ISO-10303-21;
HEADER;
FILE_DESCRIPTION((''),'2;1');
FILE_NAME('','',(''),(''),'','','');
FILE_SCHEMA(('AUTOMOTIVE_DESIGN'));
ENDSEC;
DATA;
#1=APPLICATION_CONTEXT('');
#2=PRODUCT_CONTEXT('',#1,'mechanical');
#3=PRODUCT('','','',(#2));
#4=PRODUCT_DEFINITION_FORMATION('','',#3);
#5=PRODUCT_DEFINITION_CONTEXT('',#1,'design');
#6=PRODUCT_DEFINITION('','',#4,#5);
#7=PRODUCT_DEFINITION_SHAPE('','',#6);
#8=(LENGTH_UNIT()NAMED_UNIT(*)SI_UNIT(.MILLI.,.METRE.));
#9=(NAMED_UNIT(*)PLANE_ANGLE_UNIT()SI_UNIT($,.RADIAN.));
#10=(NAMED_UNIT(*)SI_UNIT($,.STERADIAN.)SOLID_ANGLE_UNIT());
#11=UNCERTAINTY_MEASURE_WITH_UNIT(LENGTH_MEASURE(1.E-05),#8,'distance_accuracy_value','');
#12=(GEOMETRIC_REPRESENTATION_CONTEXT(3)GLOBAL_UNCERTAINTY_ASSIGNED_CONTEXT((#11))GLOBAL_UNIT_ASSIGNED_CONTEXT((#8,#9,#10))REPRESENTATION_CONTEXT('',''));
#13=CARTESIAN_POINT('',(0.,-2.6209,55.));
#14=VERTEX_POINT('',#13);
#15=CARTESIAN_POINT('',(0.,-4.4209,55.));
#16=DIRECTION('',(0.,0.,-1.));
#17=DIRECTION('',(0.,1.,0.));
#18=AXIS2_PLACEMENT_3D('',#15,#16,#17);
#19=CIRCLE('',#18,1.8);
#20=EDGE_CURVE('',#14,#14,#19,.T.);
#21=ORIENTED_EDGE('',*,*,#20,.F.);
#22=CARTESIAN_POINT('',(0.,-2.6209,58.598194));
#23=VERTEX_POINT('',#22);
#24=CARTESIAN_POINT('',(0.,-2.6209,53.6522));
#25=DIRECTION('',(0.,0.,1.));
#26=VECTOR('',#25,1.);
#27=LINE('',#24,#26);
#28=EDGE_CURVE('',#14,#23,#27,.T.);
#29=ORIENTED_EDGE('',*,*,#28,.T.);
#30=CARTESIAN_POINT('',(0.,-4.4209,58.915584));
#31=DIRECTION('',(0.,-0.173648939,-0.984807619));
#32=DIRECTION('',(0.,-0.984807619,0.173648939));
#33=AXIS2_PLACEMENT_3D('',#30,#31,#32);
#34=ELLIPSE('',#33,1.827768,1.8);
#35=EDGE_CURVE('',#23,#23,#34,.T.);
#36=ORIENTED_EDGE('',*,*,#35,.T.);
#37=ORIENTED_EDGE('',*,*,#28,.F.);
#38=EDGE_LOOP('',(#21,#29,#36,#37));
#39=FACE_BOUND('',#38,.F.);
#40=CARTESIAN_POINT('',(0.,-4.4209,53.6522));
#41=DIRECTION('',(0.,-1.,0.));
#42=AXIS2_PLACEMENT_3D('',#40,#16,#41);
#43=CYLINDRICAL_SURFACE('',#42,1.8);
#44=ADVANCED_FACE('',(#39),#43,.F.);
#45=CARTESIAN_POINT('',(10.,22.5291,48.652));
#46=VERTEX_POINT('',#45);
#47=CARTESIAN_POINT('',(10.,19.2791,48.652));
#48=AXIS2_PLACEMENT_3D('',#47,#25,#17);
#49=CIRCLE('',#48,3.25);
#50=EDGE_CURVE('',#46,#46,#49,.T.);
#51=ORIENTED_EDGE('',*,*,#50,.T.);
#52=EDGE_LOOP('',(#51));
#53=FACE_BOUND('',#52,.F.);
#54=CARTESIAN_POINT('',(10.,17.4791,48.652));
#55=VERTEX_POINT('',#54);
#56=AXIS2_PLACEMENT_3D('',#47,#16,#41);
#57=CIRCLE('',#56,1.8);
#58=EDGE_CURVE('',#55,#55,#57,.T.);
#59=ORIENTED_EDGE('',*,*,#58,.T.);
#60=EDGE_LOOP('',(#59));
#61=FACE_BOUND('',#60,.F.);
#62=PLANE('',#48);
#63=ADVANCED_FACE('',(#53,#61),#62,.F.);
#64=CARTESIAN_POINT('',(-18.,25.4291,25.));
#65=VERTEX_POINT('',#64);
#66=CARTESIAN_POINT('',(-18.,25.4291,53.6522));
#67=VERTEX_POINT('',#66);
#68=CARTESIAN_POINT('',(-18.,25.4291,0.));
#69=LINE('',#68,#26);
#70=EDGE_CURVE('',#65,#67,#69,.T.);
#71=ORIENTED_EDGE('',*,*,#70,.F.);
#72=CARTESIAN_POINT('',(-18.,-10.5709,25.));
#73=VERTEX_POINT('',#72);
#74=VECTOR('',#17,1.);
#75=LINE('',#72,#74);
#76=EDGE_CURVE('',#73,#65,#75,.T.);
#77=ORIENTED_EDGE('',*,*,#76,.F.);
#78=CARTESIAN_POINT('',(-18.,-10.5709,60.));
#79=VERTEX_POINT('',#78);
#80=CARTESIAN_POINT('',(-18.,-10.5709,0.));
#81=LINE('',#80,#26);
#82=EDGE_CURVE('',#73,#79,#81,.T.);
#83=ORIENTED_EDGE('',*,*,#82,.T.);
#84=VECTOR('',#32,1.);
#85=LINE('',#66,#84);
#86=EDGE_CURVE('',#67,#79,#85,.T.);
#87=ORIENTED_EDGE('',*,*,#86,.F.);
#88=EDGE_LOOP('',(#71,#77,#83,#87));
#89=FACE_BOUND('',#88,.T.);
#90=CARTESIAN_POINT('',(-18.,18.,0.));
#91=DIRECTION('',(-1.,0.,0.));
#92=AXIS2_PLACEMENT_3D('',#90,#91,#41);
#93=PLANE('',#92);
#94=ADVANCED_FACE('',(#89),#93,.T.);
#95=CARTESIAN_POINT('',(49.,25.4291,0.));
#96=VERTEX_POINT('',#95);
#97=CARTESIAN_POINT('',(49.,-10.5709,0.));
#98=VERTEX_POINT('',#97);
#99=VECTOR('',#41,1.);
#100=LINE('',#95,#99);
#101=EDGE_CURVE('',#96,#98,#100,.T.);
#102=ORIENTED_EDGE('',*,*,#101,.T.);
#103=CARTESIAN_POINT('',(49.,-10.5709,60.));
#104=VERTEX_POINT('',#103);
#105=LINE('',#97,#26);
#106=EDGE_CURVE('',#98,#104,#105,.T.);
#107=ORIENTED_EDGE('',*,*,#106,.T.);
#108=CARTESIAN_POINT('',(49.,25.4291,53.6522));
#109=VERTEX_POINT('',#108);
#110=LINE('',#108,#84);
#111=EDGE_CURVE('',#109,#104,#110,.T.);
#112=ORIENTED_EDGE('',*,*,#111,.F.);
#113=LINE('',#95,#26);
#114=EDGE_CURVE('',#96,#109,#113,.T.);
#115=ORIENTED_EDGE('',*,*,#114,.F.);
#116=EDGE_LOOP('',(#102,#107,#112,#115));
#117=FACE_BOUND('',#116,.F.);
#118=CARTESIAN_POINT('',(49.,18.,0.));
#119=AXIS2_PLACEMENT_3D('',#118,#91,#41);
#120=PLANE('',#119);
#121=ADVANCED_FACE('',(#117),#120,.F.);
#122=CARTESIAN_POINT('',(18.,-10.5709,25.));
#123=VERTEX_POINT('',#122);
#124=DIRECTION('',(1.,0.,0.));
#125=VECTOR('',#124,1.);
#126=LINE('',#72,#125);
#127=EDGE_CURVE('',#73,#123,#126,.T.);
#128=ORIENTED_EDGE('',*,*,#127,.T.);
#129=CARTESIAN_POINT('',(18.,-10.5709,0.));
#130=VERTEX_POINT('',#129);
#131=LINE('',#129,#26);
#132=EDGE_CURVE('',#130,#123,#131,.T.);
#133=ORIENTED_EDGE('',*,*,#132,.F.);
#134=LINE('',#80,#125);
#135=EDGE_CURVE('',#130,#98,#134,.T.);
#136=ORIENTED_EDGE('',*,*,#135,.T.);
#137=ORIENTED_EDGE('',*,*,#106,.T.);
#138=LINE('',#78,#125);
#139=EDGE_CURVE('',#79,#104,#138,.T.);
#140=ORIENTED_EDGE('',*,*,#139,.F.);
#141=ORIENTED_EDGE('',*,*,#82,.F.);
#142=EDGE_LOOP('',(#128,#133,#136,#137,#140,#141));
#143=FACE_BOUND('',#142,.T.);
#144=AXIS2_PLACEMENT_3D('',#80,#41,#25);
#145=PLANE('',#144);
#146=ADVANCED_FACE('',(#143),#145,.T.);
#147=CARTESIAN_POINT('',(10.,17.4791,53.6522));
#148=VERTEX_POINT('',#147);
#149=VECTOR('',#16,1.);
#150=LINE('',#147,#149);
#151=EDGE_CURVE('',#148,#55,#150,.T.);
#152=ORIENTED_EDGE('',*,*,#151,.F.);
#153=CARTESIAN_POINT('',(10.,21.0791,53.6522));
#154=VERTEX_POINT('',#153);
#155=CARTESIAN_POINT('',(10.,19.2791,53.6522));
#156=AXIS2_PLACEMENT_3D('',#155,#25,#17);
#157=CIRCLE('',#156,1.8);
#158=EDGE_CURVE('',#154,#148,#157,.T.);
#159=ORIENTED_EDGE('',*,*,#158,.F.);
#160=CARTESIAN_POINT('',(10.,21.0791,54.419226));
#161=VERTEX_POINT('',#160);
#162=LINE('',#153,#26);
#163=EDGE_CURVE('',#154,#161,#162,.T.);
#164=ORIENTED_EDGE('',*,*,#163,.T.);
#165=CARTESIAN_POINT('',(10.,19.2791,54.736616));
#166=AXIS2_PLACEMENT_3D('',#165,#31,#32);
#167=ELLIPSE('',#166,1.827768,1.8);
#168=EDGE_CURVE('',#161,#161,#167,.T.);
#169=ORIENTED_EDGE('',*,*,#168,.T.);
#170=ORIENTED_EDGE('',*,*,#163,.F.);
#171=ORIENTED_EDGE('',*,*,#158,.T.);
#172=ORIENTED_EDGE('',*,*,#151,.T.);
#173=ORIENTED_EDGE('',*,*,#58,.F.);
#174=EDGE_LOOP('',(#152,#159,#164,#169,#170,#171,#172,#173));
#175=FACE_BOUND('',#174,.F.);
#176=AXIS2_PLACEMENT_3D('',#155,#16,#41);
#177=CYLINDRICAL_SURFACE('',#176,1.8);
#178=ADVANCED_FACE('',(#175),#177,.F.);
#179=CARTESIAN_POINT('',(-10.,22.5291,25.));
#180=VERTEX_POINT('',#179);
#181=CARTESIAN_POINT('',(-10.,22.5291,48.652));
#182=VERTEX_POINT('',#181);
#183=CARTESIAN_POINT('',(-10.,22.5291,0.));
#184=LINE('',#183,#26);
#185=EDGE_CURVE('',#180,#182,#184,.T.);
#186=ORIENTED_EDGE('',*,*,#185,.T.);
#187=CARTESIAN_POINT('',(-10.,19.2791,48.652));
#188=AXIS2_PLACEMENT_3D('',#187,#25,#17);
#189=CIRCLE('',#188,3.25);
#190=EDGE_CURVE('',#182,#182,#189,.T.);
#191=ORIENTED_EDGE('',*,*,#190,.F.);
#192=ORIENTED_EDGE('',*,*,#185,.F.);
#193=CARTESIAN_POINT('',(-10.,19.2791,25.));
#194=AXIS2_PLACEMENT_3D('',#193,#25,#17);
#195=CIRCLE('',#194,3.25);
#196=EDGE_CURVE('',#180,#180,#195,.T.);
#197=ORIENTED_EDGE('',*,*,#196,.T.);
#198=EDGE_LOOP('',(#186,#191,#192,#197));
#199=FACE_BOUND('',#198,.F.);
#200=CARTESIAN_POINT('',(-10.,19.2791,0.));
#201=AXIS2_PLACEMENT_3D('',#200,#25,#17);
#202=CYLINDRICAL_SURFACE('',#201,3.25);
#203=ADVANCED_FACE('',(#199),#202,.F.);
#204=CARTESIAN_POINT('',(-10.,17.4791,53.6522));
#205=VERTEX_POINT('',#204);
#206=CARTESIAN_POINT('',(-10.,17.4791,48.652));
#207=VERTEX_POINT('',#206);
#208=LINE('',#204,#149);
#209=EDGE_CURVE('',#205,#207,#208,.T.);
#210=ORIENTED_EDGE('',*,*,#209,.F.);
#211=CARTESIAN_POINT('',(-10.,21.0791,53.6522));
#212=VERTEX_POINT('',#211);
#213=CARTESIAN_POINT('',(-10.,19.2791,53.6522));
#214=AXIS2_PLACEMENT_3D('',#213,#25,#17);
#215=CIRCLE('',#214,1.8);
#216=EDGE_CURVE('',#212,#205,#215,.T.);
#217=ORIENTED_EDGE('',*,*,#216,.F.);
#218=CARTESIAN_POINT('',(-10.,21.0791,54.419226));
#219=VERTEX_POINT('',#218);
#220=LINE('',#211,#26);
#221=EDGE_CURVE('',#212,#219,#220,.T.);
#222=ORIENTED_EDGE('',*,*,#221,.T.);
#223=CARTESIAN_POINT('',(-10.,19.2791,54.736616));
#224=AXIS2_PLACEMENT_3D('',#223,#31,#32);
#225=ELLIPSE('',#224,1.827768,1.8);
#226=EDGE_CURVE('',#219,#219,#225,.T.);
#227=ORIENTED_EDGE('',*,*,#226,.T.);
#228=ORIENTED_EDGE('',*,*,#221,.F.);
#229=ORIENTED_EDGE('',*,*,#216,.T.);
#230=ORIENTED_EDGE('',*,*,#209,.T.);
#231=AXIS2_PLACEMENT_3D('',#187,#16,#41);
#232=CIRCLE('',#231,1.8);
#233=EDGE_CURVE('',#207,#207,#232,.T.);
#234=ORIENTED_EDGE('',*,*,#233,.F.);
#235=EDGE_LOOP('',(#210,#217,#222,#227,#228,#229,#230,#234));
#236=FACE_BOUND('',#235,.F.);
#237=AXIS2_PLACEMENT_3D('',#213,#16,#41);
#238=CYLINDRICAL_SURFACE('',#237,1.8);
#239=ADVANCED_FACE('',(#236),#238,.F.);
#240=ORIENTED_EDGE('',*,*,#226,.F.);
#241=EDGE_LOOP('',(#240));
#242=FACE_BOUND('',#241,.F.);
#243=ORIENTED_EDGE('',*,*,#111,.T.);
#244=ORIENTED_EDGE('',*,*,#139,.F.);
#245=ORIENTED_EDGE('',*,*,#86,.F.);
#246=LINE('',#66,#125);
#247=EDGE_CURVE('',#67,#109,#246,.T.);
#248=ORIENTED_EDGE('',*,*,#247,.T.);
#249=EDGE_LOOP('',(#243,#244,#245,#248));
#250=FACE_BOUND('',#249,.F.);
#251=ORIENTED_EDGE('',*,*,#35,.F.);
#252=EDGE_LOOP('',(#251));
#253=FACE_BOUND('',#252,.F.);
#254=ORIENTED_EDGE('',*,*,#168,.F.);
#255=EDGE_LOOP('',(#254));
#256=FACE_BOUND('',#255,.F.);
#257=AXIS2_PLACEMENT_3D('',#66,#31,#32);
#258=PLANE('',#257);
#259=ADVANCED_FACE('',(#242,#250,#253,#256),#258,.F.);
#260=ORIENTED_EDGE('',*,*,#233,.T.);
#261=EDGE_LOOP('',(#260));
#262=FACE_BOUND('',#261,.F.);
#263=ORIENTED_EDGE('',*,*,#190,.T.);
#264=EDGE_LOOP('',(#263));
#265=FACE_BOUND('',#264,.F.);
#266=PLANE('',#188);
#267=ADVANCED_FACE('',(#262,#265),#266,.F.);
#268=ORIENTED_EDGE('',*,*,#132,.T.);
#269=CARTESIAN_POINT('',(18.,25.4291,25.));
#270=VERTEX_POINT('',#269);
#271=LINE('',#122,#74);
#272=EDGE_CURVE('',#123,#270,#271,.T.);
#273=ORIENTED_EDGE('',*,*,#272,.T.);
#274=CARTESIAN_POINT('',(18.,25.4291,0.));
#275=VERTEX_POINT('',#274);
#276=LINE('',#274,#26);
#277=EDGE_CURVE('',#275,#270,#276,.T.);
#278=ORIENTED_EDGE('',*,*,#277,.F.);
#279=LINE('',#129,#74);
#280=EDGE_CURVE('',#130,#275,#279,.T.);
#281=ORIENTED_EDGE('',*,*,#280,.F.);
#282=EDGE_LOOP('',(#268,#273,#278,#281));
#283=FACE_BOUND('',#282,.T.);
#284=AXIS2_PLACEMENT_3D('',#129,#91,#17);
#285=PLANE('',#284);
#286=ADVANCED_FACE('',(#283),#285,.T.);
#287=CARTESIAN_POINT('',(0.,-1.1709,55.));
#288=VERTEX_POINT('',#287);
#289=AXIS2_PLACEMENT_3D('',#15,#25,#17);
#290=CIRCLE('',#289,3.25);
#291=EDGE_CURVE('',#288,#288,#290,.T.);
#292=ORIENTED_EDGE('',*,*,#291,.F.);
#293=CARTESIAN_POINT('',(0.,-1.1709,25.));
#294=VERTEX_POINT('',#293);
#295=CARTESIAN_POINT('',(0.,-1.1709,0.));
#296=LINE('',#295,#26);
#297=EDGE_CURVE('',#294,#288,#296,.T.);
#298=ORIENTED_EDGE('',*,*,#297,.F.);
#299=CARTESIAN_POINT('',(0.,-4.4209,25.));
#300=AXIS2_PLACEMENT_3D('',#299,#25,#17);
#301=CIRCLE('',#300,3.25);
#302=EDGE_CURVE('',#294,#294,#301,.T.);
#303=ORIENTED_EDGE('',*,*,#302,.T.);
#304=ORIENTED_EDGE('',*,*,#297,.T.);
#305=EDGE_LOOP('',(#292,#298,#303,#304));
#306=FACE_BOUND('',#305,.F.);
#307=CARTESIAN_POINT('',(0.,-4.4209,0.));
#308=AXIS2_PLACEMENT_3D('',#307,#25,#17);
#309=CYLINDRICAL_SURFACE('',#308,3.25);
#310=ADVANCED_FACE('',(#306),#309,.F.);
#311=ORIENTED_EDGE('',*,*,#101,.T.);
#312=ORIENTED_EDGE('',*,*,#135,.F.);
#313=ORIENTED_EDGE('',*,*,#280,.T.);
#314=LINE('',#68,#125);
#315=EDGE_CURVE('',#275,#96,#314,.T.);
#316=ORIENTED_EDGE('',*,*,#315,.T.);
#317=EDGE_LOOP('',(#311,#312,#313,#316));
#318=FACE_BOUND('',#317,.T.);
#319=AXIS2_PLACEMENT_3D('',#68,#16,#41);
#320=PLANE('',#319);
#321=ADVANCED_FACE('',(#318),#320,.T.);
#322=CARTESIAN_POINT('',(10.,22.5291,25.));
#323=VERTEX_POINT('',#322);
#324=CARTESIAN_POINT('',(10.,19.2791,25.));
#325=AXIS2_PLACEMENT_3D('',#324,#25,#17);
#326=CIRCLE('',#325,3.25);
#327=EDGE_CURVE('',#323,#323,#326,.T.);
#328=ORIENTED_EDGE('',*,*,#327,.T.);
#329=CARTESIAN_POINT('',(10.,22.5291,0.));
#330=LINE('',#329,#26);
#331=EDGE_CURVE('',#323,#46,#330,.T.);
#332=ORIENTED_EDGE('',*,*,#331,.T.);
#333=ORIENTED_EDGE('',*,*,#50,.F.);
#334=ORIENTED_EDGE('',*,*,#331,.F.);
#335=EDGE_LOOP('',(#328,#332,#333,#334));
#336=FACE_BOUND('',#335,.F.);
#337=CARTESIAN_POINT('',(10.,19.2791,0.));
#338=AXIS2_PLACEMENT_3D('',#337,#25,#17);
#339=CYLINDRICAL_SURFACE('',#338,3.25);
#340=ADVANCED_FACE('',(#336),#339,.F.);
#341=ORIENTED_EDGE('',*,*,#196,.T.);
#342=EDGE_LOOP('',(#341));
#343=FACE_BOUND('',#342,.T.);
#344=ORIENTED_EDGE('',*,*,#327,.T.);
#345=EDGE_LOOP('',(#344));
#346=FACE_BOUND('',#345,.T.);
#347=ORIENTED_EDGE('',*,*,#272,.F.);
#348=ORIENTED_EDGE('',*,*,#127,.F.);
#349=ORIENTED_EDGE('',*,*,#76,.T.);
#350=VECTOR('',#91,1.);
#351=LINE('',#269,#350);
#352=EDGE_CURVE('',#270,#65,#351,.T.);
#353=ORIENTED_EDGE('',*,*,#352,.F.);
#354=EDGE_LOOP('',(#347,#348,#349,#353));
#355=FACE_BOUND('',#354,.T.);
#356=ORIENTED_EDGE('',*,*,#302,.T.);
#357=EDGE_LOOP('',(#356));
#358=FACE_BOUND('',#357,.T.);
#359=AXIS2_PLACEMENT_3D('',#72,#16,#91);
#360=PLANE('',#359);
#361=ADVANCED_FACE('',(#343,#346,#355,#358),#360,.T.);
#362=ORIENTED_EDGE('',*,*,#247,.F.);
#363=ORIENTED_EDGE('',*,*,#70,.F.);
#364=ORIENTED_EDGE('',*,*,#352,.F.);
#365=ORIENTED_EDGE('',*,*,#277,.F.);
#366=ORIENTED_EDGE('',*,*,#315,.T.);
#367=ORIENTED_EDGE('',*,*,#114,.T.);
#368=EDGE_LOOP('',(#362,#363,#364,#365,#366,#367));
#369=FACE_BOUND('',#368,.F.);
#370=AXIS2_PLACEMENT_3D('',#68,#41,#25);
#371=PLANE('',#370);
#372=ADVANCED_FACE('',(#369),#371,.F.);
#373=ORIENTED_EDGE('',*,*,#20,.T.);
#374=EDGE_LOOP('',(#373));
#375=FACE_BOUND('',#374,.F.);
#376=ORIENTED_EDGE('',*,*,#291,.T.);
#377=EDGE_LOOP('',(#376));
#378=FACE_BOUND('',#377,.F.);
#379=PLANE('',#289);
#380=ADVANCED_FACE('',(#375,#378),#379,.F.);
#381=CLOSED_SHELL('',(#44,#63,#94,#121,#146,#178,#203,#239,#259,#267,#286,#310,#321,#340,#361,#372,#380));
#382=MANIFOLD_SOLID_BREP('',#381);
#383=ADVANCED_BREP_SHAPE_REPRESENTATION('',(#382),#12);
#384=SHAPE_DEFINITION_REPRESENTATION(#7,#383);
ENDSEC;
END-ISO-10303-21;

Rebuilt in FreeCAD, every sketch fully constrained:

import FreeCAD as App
import Part
import Sketcher

V = App.Vector
Q = App.Units.Quantity

doc = App.newDocument("Part")
body = doc.addObject("PartDesign::Body", "Body")

# Sketch on YZ plane
sketch1 = body.newObject("Sketcher::SketchObject", "Sketch")
sketch1.AttachmentSupport = (doc.getObject("YZ_Plane"), [""])
sketch1.MapMode = "FlatFace"
sketch1.AttachmentOffset = App.Placement(V(0, 0, -18), App.Rotation())
sketch1.addGeometry([
    Part.LineSegment(V(25.4291, 53.6522, 0), V(25.4291, 0, 0)),
    Part.LineSegment(V(25.4291, 0, 0), V(-10.5709, 0, 0)),
    Part.LineSegment(V(-10.5709, 0, 0), V(-10.5709, 60, 0)),
    Part.LineSegment(V(-10.5709, 60, 0), V(25.4291, 53.6522, 0)),
], False)
sketch1.addConstraint([
    Sketcher.Constraint("Coincident", 0, 2, 1, 1),
    Sketcher.Constraint("Coincident", 1, 2, 2, 1),
    Sketcher.Constraint("Coincident", 2, 2, 3, 1),
    Sketcher.Constraint("Coincident", 3, 2, 0, 1),
    Sketcher.Constraint("Vertical", 0),
    Sketcher.Constraint("Horizontal", 1),
    Sketcher.Constraint("Vertical", 2),
    Sketcher.Constraint("PointOnObject", 0, 2, -1),
    Sketcher.Constraint("DistanceX", 1, 2, 1, 1, Q("36 mm")),
    Sketcher.Constraint("DistanceY", 2, 1, 2, 2, Q("60 mm")),
    Sketcher.Constraint("Angle", 3, Q("-10 deg")),
    Sketcher.Constraint("DistanceX", -1, 1, 0, 2, Q("25.429 mm")),
])
pad1 = body.newObject("PartDesign::Pad", "Pad")
pad1.Profile = sketch1
pad1.Length = 67

# Sketch on XY plane
sketch2 = body.newObject("Sketcher::SketchObject", "Sketch001")
sketch2.AttachmentSupport = (doc.getObject("XY_Plane"), [""])
sketch2.MapMode = "FlatFace"
sketch2.AttachmentOffset = App.Placement(V(0, 0, 53.6522), App.Rotation())
sketch2.addGeometry([
    Part.Circle(V(10, 19.2791, 0), V(0, 0, 1), 1.8),
    Part.Circle(V(0, -4.4209, 0), V(0, 0, 1), 1.8),
    Part.Circle(V(-10, 19.2791, 0), V(0, 0, 1), 1.8),
], False)
sketch2.addConstraint([
    Sketcher.Constraint("Equal", 0, 1),
    Sketcher.Constraint("Equal", 1, 2),
    Sketcher.Constraint("Symmetric", 0, 3, 2, 3, -2),
    Sketcher.Constraint("PointOnObject", 1, 3, -2),
    Sketcher.Constraint("Diameter", 0, Q("3.6 mm")),
    Sketcher.Constraint("DistanceX", -1, 1, 0, 3, Q("10 mm")),
    Sketcher.Constraint("DistanceY", 1, 3, 0, 3, Q("23.7 mm")),
    Sketcher.Constraint("DistanceY", -1, 1, 0, 3, Q("19.279 mm")),
])
doc.recompute()
hole = body.newObject("PartDesign::Hole", "Hole")
hole.Profile = sketch2
hole.ThreadType = "None"
hole.Diameter = 3.6
hole.DepthType = "ThroughAll"
hole.Reversed = True

# Sketch on XY plane
sketch3 = body.newObject("Sketcher::SketchObject", "Sketch002")
sketch3.AttachmentSupport = (doc.getObject("XY_Plane"), [""])
sketch3.MapMode = "FlatFace"
sketch3.AttachmentOffset = App.Placement(V(0, 0, 53.6522), App.Rotation())
sketch3.addGeometry([
    Part.Circle(V(10, 19.2791, 0), V(0, 0, 1), 1.8),
    Part.Circle(V(-10, 19.2791, 0), V(0, 0, 1), 1.8),
    Part.Circle(V(0, -4.4209, 0), V(0, 0, 1), 1.8),
], False)
sketch3.addConstraint([
    Sketcher.Constraint("Equal", 0, 1),
    Sketcher.Constraint("Equal", 1, 2),
    Sketcher.Constraint("Symmetric", 0, 3, 1, 3, -2),
    Sketcher.Constraint("PointOnObject", 2, 3, -2),
    Sketcher.Constraint("Diameter", 0, Q("3.6 mm")),
    Sketcher.Constraint("DistanceX", -1, 1, 0, 3, Q("10 mm")),
    Sketcher.Constraint("DistanceY", 2, 3, 0, 3, Q("23.7 mm")),
    Sketcher.Constraint("DistanceY", -1, 1, 0, 3, Q("19.279 mm")),
])
doc.recompute()
hole2 = body.newObject("PartDesign::Hole", "Hole001")
hole2.Profile = sketch3
hole2.ThreadType = "None"
hole2.Diameter = 3.6
hole2.DepthType = "ThroughAll"

# Sketch on XY plane
sketch4 = body.newObject("Sketcher::SketchObject", "Sketch003")
sketch4.AttachmentSupport = (doc.getObject("XY_Plane"), [""])
sketch4.MapMode = "FlatFace"
sketch4.addGeometry([
    Part.Circle(V(-10, 19.2791, 0), V(0, 0, 1), 3.25),
    Part.Circle(V(10, 19.2791, 0), V(0, 0, 1), 3.25),
], False)
sketch4.addConstraint([
    Sketcher.Constraint("Equal", 0, 1),
    Sketcher.Constraint("Symmetric", 0, 3, 1, 3, -2),
    Sketcher.Constraint("Diameter", 0, Q("6.5 mm")),
    Sketcher.Constraint("DistanceX", 0, 3, -1, 1, Q("10 mm")),
    Sketcher.Constraint("DistanceY", -1, 1, 0, 3, Q("19.279 mm")),
])
doc.recompute()
hole3 = body.newObject("PartDesign::Hole", "Hole002")
hole3.Profile = sketch4
hole3.ThreadType = "None"
hole3.Diameter = 6.5
hole3.DepthType = "Dimension"
hole3.Depth = 48.652
hole3.DrillPoint = "Flat"
hole3.Reversed = True

# Sketch on XY plane
sketch5 = body.newObject("Sketcher::SketchObject", "Sketch004")
sketch5.AttachmentSupport = (doc.getObject("XY_Plane"), [""])
sketch5.MapMode = "FlatFace"
sketch5.addGeometry(Part.Circle(V(0, -4.4209, 0), V(0, 0, 1), 3.25), False)
sketch5.addConstraint([
    Sketcher.Constraint("PointOnObject", 0, 3, -2),
    Sketcher.Constraint("Diameter", 0, Q("6.5 mm")),
    Sketcher.Constraint("DistanceY", 0, 3, -1, 1, Q("4.421 mm")),
])
doc.recompute()
hole4 = body.newObject("PartDesign::Hole", "Hole003")
hole4.Profile = sketch5
hole4.ThreadType = "None"
hole4.Diameter = 6.5
hole4.DepthType = "Dimension"
hole4.Depth = 55
hole4.DrillPoint = "Flat"
hole4.Reversed = True

# Sketch on XY plane
sketch6 = body.newObject("Sketcher::SketchObject", "Sketch005")
sketch6.AttachmentSupport = (doc.getObject("XY_Plane"), [""])
sketch6.MapMode = "FlatFace"
sketch6.addGeometry([
    Part.LineSegment(V(18, -10.5709, 0), V(-18, -10.5709, 0)),
    Part.LineSegment(V(-18, -10.5709, 0), V(-18, 25.4291, 0)),
    Part.LineSegment(V(-18, 25.4291, 0), V(18, 25.4291, 0)),
    Part.LineSegment(V(18, 25.4291, 0), V(18, -10.5709, 0)),
], False)
sketch6.addConstraint([
    Sketcher.Constraint("Coincident", 0, 2, 1, 1),
    Sketcher.Constraint("Coincident", 1, 2, 2, 1),
    Sketcher.Constraint("Coincident", 2, 2, 3, 1),
    Sketcher.Constraint("Coincident", 3, 2, 0, 1),
    Sketcher.Constraint("Horizontal", 0),
    Sketcher.Constraint("Vertical", 1),
    Sketcher.Constraint("Horizontal", 2),
    Sketcher.Constraint("Vertical", 3),
    Sketcher.Constraint("Equal", 2, 1),
    Sketcher.Constraint("DistanceX", 0, 2, 0, 1, Q("36 mm")),
    Sketcher.Constraint("DistanceX", 0, 2, -1, 1, Q("18 mm")),
    Sketcher.Constraint("DistanceY", 0, 2, -1, 1, Q("10.571 mm")),
])
pocket1 = body.newObject("PartDesign::Pocket", "Pocket")
pocket1.Profile = sketch6
pocket1.Length = 25
pocket1.Reversed = True

doc.recompute()
